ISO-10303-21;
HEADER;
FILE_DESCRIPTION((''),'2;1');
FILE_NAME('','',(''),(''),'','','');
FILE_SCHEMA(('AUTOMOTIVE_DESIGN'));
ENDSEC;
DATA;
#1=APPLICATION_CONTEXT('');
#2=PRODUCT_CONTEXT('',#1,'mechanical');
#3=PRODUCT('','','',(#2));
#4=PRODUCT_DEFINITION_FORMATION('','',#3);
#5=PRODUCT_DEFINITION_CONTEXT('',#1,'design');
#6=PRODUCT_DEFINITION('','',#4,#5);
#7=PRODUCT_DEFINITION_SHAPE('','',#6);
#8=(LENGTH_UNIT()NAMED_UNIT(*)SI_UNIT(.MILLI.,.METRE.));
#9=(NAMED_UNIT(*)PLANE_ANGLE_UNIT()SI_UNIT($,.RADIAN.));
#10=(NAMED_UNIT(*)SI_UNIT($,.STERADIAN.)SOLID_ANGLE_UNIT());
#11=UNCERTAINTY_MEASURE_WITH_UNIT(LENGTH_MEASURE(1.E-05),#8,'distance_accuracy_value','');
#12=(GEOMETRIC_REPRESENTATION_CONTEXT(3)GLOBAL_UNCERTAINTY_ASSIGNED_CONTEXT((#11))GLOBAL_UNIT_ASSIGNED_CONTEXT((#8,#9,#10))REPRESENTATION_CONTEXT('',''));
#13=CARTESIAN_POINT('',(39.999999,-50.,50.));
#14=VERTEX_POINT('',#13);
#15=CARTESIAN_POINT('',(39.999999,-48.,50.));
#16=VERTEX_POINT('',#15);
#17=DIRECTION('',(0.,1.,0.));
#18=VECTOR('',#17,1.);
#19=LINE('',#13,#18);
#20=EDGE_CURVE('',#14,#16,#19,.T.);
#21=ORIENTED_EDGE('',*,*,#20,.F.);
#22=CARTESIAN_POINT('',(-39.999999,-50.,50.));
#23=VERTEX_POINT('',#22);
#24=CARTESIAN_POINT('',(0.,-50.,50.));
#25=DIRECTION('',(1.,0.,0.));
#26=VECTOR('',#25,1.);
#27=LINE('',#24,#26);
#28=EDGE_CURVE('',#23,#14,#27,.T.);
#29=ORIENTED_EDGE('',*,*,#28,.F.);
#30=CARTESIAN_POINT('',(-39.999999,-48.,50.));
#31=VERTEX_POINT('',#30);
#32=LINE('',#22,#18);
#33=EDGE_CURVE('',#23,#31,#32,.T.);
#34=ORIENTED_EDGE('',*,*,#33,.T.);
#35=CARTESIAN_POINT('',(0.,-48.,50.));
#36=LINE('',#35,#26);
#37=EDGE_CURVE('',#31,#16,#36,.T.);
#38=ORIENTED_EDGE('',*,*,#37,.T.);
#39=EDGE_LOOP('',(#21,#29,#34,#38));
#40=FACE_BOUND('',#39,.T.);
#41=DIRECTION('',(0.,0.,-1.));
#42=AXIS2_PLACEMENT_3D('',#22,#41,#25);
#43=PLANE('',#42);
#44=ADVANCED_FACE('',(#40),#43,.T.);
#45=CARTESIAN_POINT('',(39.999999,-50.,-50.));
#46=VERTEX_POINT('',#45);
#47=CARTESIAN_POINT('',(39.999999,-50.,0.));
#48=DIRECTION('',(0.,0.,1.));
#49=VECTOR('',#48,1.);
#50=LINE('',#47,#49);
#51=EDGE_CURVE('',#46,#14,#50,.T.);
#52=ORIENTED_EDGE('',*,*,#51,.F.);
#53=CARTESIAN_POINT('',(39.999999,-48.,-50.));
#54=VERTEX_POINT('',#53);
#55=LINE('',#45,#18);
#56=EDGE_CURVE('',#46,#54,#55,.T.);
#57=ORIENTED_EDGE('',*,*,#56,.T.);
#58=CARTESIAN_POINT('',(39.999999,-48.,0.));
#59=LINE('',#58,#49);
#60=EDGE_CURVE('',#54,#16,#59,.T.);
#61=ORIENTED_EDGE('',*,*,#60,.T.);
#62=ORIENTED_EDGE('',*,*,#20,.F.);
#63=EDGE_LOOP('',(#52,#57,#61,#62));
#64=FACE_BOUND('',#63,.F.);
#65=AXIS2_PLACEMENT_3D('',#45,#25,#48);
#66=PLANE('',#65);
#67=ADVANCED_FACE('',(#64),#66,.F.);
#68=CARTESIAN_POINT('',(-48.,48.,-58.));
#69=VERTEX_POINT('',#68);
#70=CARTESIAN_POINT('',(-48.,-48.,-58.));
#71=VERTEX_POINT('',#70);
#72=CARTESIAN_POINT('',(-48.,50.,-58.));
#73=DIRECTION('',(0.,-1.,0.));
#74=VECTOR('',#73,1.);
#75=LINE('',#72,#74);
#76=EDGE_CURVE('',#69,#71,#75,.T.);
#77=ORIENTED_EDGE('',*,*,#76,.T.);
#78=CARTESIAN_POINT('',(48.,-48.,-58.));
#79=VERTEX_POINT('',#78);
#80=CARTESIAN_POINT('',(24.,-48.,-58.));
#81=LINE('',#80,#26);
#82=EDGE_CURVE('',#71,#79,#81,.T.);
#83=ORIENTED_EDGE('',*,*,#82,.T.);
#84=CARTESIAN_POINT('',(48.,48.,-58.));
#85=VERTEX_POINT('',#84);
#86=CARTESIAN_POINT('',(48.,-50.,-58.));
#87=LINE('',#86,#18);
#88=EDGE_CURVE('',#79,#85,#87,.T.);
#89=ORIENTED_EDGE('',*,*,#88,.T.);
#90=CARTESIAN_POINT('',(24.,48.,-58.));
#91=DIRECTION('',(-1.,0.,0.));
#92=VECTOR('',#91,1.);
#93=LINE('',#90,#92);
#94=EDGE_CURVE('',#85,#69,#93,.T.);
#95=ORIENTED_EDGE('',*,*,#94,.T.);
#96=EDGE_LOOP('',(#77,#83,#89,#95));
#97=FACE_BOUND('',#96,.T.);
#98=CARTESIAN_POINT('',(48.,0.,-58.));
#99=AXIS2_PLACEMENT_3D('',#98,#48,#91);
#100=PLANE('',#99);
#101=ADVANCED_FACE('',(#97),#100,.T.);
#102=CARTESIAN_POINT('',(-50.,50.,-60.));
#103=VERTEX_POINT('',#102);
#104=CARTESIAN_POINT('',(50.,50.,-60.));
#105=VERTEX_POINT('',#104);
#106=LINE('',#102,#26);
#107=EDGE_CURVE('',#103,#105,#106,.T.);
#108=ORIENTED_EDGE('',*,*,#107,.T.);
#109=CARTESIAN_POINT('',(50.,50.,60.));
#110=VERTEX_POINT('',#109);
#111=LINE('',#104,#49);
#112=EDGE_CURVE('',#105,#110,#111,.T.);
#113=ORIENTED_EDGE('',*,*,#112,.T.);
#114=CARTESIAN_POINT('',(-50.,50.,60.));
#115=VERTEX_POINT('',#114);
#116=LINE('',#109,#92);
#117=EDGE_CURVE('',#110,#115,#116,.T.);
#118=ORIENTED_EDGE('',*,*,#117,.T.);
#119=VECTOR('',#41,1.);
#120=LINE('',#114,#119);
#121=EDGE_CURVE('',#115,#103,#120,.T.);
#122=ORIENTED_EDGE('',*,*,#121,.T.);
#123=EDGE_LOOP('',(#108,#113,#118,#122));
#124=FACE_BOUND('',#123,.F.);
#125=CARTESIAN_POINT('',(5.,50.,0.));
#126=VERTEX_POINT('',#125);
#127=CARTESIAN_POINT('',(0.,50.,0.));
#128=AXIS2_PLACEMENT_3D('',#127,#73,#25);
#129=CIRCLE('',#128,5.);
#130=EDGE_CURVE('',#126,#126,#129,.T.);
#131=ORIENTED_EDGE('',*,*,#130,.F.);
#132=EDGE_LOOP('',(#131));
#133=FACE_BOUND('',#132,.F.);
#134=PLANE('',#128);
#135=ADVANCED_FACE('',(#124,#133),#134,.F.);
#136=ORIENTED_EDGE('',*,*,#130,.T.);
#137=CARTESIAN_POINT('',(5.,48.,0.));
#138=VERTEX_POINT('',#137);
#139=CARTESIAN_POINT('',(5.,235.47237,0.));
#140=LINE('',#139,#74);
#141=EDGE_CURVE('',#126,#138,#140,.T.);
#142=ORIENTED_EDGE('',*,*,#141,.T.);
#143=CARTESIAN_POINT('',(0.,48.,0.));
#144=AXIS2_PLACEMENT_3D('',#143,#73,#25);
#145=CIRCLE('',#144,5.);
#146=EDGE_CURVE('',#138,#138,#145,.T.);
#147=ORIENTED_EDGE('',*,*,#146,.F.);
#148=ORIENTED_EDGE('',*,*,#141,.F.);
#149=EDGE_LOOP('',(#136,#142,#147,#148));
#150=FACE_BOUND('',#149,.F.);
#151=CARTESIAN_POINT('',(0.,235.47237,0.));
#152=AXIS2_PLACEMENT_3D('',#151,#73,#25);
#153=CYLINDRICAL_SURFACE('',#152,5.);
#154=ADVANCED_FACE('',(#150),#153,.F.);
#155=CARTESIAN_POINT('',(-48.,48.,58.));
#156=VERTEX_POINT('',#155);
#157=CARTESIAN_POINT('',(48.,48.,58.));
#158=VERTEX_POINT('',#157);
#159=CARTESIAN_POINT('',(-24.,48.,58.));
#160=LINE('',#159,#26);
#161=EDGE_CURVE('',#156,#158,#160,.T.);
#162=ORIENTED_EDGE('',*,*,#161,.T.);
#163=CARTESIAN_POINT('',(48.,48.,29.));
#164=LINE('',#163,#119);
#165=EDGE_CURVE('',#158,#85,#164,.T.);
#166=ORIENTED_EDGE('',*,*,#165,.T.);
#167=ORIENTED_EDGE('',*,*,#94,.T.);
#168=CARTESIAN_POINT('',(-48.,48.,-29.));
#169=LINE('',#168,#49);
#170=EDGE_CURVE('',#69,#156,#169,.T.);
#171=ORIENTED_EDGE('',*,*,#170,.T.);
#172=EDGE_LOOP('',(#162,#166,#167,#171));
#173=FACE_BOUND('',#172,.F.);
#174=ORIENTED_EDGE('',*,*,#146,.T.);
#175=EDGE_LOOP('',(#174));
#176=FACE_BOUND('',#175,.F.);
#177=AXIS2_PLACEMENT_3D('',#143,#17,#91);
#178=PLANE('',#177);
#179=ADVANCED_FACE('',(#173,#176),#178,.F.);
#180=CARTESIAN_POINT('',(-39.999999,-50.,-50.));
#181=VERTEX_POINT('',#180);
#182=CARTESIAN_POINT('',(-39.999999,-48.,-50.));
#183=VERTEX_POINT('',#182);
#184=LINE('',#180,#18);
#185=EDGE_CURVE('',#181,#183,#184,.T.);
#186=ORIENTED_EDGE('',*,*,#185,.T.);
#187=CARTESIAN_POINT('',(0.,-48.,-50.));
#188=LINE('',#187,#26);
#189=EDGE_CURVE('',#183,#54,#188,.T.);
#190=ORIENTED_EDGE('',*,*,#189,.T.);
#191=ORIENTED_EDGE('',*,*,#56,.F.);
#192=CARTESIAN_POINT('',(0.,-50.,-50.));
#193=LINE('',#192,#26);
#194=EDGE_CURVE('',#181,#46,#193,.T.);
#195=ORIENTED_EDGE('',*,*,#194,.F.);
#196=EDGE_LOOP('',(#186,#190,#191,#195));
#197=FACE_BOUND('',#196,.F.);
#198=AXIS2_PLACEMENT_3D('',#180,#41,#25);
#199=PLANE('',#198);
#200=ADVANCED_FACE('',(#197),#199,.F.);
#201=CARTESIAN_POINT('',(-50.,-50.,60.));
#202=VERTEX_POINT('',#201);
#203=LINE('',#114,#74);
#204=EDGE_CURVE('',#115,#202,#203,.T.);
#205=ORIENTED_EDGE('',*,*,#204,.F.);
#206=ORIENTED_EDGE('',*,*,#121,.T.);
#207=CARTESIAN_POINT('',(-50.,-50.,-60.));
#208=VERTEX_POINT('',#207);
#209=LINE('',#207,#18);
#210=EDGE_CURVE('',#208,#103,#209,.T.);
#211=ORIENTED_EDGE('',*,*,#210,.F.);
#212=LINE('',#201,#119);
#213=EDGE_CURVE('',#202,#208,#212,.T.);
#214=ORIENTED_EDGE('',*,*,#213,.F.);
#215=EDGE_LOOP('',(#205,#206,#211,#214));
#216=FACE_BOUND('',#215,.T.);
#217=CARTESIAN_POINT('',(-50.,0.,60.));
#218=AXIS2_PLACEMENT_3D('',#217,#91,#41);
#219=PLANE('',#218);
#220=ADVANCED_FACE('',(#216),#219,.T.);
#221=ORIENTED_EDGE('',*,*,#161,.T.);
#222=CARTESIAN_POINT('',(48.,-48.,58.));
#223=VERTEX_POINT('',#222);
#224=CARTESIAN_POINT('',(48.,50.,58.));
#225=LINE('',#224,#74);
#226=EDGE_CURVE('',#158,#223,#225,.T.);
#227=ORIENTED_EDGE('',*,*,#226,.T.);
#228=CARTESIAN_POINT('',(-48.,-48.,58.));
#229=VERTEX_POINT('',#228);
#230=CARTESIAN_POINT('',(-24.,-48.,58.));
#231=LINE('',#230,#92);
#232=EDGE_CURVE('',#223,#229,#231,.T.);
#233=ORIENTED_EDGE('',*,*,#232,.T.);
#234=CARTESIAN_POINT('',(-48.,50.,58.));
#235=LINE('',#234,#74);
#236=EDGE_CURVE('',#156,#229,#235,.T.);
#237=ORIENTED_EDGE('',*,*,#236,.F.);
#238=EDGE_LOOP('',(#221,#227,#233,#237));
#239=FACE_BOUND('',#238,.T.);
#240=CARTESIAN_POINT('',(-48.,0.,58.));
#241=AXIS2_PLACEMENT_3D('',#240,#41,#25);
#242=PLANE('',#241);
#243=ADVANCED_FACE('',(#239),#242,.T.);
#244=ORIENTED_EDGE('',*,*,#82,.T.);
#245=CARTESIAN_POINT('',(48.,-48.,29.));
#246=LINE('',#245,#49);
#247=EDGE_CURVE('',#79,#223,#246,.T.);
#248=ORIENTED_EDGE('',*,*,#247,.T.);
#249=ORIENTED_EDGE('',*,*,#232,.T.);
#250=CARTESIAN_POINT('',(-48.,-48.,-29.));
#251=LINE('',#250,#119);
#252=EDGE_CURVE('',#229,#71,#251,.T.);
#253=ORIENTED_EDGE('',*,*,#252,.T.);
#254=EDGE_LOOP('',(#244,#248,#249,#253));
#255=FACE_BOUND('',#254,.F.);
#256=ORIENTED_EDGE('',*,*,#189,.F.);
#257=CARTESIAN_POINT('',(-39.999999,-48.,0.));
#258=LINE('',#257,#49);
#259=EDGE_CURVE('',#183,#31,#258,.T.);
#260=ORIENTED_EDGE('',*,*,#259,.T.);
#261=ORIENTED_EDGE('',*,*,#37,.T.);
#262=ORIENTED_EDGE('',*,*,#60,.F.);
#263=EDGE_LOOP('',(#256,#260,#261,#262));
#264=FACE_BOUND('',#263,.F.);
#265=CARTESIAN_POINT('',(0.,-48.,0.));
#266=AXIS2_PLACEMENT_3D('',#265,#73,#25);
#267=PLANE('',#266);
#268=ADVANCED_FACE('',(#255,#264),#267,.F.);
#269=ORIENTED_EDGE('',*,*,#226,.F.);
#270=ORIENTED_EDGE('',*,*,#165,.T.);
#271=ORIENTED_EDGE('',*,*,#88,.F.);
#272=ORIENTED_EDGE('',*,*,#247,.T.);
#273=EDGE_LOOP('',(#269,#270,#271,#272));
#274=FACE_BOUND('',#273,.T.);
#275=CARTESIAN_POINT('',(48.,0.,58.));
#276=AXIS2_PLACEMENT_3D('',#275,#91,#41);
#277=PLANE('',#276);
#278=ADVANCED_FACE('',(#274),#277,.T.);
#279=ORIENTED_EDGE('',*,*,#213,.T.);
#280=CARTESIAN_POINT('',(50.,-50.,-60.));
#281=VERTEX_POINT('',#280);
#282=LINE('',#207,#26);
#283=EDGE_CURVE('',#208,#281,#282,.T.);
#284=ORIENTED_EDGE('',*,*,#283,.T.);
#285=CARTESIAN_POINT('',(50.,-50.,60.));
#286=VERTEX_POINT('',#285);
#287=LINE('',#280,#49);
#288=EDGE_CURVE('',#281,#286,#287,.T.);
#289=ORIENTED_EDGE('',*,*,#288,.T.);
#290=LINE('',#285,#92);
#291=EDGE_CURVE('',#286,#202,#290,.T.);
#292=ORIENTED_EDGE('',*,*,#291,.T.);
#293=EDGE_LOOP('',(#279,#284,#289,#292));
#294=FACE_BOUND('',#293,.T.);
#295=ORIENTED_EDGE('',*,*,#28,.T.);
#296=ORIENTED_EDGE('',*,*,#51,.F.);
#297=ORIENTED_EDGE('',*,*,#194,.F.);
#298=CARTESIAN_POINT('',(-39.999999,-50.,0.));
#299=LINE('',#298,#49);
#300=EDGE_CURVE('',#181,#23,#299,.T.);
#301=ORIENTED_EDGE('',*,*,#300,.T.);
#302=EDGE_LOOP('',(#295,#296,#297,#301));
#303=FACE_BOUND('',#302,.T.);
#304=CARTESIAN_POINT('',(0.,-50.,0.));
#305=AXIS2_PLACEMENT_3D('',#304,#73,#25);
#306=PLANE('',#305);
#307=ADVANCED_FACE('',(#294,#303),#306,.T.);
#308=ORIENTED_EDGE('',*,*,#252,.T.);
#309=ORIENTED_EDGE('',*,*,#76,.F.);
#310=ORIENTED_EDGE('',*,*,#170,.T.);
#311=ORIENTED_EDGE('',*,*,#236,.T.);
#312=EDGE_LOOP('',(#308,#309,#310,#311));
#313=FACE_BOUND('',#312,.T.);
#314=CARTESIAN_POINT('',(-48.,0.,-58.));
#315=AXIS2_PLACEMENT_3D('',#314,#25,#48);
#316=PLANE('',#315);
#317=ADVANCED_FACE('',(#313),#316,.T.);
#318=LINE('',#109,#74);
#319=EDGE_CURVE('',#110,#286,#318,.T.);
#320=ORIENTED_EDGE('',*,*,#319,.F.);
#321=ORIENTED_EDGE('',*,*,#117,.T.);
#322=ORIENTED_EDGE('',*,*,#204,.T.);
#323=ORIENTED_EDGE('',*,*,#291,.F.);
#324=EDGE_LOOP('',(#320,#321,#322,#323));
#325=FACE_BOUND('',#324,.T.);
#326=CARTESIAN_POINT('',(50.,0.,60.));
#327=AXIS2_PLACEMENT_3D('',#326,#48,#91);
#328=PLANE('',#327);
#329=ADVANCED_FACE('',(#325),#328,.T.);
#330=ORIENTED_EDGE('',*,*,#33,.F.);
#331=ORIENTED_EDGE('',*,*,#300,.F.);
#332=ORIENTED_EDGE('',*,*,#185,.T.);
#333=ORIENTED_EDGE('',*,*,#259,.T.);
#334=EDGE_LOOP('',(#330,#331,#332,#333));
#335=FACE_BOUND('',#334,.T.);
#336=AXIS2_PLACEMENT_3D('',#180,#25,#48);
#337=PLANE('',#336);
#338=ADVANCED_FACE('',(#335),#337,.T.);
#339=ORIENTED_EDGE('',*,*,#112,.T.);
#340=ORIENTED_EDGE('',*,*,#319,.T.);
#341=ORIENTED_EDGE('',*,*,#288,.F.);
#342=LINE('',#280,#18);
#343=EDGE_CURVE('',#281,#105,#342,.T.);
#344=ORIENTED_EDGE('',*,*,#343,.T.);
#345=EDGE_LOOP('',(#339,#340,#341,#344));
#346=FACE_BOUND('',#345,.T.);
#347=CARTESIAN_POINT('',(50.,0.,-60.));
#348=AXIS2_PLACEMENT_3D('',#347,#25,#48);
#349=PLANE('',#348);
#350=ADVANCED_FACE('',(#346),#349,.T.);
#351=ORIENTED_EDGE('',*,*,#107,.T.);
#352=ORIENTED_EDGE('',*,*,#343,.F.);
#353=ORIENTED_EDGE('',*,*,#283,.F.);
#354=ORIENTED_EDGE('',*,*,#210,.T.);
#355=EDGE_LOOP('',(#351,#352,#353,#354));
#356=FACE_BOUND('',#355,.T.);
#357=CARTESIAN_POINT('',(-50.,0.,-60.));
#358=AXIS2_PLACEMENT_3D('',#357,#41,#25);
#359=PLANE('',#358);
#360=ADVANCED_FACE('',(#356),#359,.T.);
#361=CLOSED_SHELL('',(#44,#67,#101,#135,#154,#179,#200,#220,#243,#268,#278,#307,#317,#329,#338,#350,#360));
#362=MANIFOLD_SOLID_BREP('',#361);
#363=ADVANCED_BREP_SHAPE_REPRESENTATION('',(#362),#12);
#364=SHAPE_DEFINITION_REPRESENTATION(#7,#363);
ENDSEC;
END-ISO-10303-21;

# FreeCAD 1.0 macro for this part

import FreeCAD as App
import Part
import Sketcher

V = App.Vector


def add_polygon(sketch, points):
    """Adds a closed chain of lines whose ends are joined by coincident constraints."""
    first, n = sketch.GeometryCount, len(points)
    for a, b in zip(points, points[1:] + points[:1]):
        sketch.addGeometry(Part.LineSegment(App.Vector(*a, 0), App.Vector(*b, 0)), False)
    for i in range(n):
        sketch.addConstraint(Sketcher.Constraint("Coincident", first + i, 2, first + (i + 1) % n, 1))

doc = App.newDocument("Part")
params = doc.addObject("Spreadsheet::Sheet", "Params")
for row, (alias, value) in enumerate([
    ("sketch1_width", "100 mm"),
    ("sketch1_width2", "96 mm"),
    ("sketch1_height", "120 mm"),
    ("sketch1_height2", "116 mm"),
    ("pad1_length", "100 mm"),
    ("sketch2_width", "100 mm"),
    ("sketch2_height", "120 mm"),
    ("pad2_length", "2 mm"),
    ("sketch3_diameter", "10 mm"),
    ("hole_diameter", "10 mm"),
    ("sketch4_width", "100 mm"),
    ("sketch4_width2", "79.999998 mm"),
    ("sketch4_height", "120 mm"),
    ("pad3_length", "2 mm"),
], start=1):
    params.set(f"A{row}", alias)
    params.set(f"B{row}", "=" + value)
    params.setAlias(f"B{row}", alias)

body = doc.addObject("PartDesign::Body", "Body")

# Sketch on XZ plane
sketch1 = body.newObject("Sketcher::SketchObject", "Sketch")
sketch1.AttachmentSupport = (doc.getObject("XZ_Plane"), [""])
sketch1.MapMode = "FlatFace"
add_polygon(sketch1, [(50, -60), (50, 60), (-50, 60), (-50, -60)])  # lines 0-3
add_polygon(sketch1, [(48, -58), (-48, -58), (-48, 58), (48, 58)])  # lines 4-7
sketch1.addConstraint(Sketcher.Constraint("Vertical", 0))
sketch1.addConstraint(Sketcher.Constraint("Horizontal", 1))
sketch1.addConstraint(Sketcher.Constraint("Vertical", 2))
sketch1.addConstraint(Sketcher.Constraint("Horizontal", 3))
sketch1.addConstraint(Sketcher.Constraint("Horizontal", 4))
sketch1.addConstraint(Sketcher.Constraint("Vertical", 5))
sketch1.addConstraint(Sketcher.Constraint("Horizontal", 6))
sketch1.addConstraint(Sketcher.Constraint("Vertical", 7))
sketch1.addConstraint(Sketcher.Constraint("Symmetric", 0, 2, 2, 2, -1, 1))
sketch1.addConstraint(Sketcher.Constraint("Symmetric", 4, 2, 6, 2, -1, 1))
sketch1.addConstraint(Sketcher.Constraint("DistanceX", 1, 2, 1, 1, 100.0))
sketch1.addConstraint(Sketcher.Constraint("DistanceX", 4, 2, 4, 1, 96.0))
sketch1.addConstraint(Sketcher.Constraint("DistanceY", 0, 1, 0, 2, 120.0))
sketch1.addConstraint(Sketcher.Constraint("DistanceY", 5, 1, 5, 2, 116.0))
sketch1.setExpression("Constraints[18]", "Params.sketch1_width")
sketch1.setExpression("Constraints[19]", "Params.sketch1_width2")
sketch1.setExpression("Constraints[20]", "Params.sketch1_height")
sketch1.setExpression("Constraints[21]", "Params.sketch1_height2")
pad1 = body.newObject("PartDesign::Pad", "Pad")
pad1.Profile = sketch1
pad1.setExpression("Length", "Params.pad1_length")
pad1.Midplane = True

# Sketch on XZ plane
sketch2 = body.newObject("Sketcher::SketchObject", "Sketch001")
sketch2.AttachmentSupport = (doc.getObject("XZ_Plane"), [""])
sketch2.MapMode = "FlatFace"
sketch2.AttachmentOffset = App.Placement(V(0, 0, -50), App.Rotation())
add_polygon(sketch2, [(50, 60), (50, -60), (-50, -60), (-50, 60)])  # lines 0-3
sketch2.addConstraint(Sketcher.Constraint("Vertical", 0))
sketch2.addConstraint(Sketcher.Constraint("Horizontal", 1))
sketch2.addConstraint(Sketcher.Constraint("Vertical", 2))
sketch2.addConstraint(Sketcher.Constraint("Horizontal", 3))
sketch2.addConstraint(Sketcher.Constraint("Symmetric", 0, 2, 2, 2, -1, 1))
sketch2.addConstraint(Sketcher.Constraint("DistanceX", 1, 2, 1, 1, 100.0))
sketch2.addConstraint(Sketcher.Constraint("DistanceY", 0, 2, 0, 1, 120.0))
sketch2.setExpression("Constraints[9]", "Params.sketch2_width")
sketch2.setExpression("Constraints[10]", "Params.sketch2_height")
pad2 = body.newObject("PartDesign::Pad", "Pad001")
pad2.Profile = sketch2
pad2.setExpression("Length", "Params.pad2_length")

# Sketch on XZ plane
sketch3 = body.newObject("Sketcher::SketchObject", "Sketch002")
sketch3.AttachmentSupport = (doc.getObject("XZ_Plane"), [""])
sketch3.MapMode = "FlatFace"
sketch3.AttachmentOffset = App.Placement(V(0, 0, -50), App.Rotation())
sketch3.addGeometry(Part.Circle(V(0, 0, 0), V(0, 0, 1), 5), False)
sketch3.addConstraint(Sketcher.Constraint("Coincident", 0, 3, -1, 1))
sketch3.addConstraint(Sketcher.Constraint("Diameter", 0, 10.0))
sketch3.setExpression("Constraints[1]", "Params.sketch3_diameter")
doc.recompute()
hole = body.newObject("PartDesign::Hole", "Hole")
hole.Profile = sketch3
hole.ThreadType = "None"
hole.setExpression("Diameter", "Params.hole_diameter")
hole.DepthType = "ThroughAll"
hole.Reversed = True

# Sketch on XZ plane
sketch4 = body.newObject("Sketcher::SketchObject", "Sketch003")
sketch4.AttachmentSupport = (doc.getObject("XZ_Plane"), [""])
sketch4.MapMode = "FlatFace"
sketch4.AttachmentOffset = App.Placement(V(0, 0, 50), App.Rotation())
add_polygon(sketch4, [(50, 60), (-50, 60), (-50, -60), (50, -60)])  # lines 0-3
add_polygon(sketch4, [(40, -50), (-40, -50), (-40, 50), (40, 50)])  # lines 4-7
sketch4.addConstraint(Sketcher.Constraint("Horizontal", 0))
sketch4.addConstraint(Sketcher.Constraint("Vertical", 1))
sketch4.addConstraint(Sketcher.Constraint("Horizontal", 2))
sketch4.addConstraint(Sketcher.Constraint("Vertical", 3))
sketch4.addConstraint(Sketcher.Constraint("Horizontal", 4))
sketch4.addConstraint(Sketcher.Constraint("Vertical", 5))
sketch4.addConstraint(Sketcher.Constraint("Horizontal", 6))
sketch4.addConstraint(Sketcher.Constraint("Vertical", 7))
sketch4.addConstraint(Sketcher.Constraint("Symmetric", 0, 2, 2, 2, -1, 1))
sketch4.addConstraint(Sketcher.Constraint("Symmetric", 4, 2, 6, 2, -1, 1))
sketch4.addConstraint(Sketcher.Constraint("Equal", 2, 5))
sketch4.addConstraint(Sketcher.Constraint("DistanceX", 0, 2, 0, 1, 100.0))
sketch4.addConstraint(Sketcher.Constraint("DistanceX", 4, 2, 4, 1, 79.999998))
sketch4.addConstraint(Sketcher.Constraint("DistanceY", 1, 2, 1, 1, 120.0))
sketch4.setExpression("Constraints[19]", "Params.sketch4_width")
sketch4.setExpression("Constraints[20]", "Params.sketch4_width2")
sketch4.setExpression("Constraints[21]", "Params.sketch4_height")
pad3 = body.newObject("PartDesign::Pad", "Pad002")
pad3.Profile = sketch4
pad3.setExpression("Length", "Params.pad3_length")
pad3.Reversed = True

doc.recompute()
